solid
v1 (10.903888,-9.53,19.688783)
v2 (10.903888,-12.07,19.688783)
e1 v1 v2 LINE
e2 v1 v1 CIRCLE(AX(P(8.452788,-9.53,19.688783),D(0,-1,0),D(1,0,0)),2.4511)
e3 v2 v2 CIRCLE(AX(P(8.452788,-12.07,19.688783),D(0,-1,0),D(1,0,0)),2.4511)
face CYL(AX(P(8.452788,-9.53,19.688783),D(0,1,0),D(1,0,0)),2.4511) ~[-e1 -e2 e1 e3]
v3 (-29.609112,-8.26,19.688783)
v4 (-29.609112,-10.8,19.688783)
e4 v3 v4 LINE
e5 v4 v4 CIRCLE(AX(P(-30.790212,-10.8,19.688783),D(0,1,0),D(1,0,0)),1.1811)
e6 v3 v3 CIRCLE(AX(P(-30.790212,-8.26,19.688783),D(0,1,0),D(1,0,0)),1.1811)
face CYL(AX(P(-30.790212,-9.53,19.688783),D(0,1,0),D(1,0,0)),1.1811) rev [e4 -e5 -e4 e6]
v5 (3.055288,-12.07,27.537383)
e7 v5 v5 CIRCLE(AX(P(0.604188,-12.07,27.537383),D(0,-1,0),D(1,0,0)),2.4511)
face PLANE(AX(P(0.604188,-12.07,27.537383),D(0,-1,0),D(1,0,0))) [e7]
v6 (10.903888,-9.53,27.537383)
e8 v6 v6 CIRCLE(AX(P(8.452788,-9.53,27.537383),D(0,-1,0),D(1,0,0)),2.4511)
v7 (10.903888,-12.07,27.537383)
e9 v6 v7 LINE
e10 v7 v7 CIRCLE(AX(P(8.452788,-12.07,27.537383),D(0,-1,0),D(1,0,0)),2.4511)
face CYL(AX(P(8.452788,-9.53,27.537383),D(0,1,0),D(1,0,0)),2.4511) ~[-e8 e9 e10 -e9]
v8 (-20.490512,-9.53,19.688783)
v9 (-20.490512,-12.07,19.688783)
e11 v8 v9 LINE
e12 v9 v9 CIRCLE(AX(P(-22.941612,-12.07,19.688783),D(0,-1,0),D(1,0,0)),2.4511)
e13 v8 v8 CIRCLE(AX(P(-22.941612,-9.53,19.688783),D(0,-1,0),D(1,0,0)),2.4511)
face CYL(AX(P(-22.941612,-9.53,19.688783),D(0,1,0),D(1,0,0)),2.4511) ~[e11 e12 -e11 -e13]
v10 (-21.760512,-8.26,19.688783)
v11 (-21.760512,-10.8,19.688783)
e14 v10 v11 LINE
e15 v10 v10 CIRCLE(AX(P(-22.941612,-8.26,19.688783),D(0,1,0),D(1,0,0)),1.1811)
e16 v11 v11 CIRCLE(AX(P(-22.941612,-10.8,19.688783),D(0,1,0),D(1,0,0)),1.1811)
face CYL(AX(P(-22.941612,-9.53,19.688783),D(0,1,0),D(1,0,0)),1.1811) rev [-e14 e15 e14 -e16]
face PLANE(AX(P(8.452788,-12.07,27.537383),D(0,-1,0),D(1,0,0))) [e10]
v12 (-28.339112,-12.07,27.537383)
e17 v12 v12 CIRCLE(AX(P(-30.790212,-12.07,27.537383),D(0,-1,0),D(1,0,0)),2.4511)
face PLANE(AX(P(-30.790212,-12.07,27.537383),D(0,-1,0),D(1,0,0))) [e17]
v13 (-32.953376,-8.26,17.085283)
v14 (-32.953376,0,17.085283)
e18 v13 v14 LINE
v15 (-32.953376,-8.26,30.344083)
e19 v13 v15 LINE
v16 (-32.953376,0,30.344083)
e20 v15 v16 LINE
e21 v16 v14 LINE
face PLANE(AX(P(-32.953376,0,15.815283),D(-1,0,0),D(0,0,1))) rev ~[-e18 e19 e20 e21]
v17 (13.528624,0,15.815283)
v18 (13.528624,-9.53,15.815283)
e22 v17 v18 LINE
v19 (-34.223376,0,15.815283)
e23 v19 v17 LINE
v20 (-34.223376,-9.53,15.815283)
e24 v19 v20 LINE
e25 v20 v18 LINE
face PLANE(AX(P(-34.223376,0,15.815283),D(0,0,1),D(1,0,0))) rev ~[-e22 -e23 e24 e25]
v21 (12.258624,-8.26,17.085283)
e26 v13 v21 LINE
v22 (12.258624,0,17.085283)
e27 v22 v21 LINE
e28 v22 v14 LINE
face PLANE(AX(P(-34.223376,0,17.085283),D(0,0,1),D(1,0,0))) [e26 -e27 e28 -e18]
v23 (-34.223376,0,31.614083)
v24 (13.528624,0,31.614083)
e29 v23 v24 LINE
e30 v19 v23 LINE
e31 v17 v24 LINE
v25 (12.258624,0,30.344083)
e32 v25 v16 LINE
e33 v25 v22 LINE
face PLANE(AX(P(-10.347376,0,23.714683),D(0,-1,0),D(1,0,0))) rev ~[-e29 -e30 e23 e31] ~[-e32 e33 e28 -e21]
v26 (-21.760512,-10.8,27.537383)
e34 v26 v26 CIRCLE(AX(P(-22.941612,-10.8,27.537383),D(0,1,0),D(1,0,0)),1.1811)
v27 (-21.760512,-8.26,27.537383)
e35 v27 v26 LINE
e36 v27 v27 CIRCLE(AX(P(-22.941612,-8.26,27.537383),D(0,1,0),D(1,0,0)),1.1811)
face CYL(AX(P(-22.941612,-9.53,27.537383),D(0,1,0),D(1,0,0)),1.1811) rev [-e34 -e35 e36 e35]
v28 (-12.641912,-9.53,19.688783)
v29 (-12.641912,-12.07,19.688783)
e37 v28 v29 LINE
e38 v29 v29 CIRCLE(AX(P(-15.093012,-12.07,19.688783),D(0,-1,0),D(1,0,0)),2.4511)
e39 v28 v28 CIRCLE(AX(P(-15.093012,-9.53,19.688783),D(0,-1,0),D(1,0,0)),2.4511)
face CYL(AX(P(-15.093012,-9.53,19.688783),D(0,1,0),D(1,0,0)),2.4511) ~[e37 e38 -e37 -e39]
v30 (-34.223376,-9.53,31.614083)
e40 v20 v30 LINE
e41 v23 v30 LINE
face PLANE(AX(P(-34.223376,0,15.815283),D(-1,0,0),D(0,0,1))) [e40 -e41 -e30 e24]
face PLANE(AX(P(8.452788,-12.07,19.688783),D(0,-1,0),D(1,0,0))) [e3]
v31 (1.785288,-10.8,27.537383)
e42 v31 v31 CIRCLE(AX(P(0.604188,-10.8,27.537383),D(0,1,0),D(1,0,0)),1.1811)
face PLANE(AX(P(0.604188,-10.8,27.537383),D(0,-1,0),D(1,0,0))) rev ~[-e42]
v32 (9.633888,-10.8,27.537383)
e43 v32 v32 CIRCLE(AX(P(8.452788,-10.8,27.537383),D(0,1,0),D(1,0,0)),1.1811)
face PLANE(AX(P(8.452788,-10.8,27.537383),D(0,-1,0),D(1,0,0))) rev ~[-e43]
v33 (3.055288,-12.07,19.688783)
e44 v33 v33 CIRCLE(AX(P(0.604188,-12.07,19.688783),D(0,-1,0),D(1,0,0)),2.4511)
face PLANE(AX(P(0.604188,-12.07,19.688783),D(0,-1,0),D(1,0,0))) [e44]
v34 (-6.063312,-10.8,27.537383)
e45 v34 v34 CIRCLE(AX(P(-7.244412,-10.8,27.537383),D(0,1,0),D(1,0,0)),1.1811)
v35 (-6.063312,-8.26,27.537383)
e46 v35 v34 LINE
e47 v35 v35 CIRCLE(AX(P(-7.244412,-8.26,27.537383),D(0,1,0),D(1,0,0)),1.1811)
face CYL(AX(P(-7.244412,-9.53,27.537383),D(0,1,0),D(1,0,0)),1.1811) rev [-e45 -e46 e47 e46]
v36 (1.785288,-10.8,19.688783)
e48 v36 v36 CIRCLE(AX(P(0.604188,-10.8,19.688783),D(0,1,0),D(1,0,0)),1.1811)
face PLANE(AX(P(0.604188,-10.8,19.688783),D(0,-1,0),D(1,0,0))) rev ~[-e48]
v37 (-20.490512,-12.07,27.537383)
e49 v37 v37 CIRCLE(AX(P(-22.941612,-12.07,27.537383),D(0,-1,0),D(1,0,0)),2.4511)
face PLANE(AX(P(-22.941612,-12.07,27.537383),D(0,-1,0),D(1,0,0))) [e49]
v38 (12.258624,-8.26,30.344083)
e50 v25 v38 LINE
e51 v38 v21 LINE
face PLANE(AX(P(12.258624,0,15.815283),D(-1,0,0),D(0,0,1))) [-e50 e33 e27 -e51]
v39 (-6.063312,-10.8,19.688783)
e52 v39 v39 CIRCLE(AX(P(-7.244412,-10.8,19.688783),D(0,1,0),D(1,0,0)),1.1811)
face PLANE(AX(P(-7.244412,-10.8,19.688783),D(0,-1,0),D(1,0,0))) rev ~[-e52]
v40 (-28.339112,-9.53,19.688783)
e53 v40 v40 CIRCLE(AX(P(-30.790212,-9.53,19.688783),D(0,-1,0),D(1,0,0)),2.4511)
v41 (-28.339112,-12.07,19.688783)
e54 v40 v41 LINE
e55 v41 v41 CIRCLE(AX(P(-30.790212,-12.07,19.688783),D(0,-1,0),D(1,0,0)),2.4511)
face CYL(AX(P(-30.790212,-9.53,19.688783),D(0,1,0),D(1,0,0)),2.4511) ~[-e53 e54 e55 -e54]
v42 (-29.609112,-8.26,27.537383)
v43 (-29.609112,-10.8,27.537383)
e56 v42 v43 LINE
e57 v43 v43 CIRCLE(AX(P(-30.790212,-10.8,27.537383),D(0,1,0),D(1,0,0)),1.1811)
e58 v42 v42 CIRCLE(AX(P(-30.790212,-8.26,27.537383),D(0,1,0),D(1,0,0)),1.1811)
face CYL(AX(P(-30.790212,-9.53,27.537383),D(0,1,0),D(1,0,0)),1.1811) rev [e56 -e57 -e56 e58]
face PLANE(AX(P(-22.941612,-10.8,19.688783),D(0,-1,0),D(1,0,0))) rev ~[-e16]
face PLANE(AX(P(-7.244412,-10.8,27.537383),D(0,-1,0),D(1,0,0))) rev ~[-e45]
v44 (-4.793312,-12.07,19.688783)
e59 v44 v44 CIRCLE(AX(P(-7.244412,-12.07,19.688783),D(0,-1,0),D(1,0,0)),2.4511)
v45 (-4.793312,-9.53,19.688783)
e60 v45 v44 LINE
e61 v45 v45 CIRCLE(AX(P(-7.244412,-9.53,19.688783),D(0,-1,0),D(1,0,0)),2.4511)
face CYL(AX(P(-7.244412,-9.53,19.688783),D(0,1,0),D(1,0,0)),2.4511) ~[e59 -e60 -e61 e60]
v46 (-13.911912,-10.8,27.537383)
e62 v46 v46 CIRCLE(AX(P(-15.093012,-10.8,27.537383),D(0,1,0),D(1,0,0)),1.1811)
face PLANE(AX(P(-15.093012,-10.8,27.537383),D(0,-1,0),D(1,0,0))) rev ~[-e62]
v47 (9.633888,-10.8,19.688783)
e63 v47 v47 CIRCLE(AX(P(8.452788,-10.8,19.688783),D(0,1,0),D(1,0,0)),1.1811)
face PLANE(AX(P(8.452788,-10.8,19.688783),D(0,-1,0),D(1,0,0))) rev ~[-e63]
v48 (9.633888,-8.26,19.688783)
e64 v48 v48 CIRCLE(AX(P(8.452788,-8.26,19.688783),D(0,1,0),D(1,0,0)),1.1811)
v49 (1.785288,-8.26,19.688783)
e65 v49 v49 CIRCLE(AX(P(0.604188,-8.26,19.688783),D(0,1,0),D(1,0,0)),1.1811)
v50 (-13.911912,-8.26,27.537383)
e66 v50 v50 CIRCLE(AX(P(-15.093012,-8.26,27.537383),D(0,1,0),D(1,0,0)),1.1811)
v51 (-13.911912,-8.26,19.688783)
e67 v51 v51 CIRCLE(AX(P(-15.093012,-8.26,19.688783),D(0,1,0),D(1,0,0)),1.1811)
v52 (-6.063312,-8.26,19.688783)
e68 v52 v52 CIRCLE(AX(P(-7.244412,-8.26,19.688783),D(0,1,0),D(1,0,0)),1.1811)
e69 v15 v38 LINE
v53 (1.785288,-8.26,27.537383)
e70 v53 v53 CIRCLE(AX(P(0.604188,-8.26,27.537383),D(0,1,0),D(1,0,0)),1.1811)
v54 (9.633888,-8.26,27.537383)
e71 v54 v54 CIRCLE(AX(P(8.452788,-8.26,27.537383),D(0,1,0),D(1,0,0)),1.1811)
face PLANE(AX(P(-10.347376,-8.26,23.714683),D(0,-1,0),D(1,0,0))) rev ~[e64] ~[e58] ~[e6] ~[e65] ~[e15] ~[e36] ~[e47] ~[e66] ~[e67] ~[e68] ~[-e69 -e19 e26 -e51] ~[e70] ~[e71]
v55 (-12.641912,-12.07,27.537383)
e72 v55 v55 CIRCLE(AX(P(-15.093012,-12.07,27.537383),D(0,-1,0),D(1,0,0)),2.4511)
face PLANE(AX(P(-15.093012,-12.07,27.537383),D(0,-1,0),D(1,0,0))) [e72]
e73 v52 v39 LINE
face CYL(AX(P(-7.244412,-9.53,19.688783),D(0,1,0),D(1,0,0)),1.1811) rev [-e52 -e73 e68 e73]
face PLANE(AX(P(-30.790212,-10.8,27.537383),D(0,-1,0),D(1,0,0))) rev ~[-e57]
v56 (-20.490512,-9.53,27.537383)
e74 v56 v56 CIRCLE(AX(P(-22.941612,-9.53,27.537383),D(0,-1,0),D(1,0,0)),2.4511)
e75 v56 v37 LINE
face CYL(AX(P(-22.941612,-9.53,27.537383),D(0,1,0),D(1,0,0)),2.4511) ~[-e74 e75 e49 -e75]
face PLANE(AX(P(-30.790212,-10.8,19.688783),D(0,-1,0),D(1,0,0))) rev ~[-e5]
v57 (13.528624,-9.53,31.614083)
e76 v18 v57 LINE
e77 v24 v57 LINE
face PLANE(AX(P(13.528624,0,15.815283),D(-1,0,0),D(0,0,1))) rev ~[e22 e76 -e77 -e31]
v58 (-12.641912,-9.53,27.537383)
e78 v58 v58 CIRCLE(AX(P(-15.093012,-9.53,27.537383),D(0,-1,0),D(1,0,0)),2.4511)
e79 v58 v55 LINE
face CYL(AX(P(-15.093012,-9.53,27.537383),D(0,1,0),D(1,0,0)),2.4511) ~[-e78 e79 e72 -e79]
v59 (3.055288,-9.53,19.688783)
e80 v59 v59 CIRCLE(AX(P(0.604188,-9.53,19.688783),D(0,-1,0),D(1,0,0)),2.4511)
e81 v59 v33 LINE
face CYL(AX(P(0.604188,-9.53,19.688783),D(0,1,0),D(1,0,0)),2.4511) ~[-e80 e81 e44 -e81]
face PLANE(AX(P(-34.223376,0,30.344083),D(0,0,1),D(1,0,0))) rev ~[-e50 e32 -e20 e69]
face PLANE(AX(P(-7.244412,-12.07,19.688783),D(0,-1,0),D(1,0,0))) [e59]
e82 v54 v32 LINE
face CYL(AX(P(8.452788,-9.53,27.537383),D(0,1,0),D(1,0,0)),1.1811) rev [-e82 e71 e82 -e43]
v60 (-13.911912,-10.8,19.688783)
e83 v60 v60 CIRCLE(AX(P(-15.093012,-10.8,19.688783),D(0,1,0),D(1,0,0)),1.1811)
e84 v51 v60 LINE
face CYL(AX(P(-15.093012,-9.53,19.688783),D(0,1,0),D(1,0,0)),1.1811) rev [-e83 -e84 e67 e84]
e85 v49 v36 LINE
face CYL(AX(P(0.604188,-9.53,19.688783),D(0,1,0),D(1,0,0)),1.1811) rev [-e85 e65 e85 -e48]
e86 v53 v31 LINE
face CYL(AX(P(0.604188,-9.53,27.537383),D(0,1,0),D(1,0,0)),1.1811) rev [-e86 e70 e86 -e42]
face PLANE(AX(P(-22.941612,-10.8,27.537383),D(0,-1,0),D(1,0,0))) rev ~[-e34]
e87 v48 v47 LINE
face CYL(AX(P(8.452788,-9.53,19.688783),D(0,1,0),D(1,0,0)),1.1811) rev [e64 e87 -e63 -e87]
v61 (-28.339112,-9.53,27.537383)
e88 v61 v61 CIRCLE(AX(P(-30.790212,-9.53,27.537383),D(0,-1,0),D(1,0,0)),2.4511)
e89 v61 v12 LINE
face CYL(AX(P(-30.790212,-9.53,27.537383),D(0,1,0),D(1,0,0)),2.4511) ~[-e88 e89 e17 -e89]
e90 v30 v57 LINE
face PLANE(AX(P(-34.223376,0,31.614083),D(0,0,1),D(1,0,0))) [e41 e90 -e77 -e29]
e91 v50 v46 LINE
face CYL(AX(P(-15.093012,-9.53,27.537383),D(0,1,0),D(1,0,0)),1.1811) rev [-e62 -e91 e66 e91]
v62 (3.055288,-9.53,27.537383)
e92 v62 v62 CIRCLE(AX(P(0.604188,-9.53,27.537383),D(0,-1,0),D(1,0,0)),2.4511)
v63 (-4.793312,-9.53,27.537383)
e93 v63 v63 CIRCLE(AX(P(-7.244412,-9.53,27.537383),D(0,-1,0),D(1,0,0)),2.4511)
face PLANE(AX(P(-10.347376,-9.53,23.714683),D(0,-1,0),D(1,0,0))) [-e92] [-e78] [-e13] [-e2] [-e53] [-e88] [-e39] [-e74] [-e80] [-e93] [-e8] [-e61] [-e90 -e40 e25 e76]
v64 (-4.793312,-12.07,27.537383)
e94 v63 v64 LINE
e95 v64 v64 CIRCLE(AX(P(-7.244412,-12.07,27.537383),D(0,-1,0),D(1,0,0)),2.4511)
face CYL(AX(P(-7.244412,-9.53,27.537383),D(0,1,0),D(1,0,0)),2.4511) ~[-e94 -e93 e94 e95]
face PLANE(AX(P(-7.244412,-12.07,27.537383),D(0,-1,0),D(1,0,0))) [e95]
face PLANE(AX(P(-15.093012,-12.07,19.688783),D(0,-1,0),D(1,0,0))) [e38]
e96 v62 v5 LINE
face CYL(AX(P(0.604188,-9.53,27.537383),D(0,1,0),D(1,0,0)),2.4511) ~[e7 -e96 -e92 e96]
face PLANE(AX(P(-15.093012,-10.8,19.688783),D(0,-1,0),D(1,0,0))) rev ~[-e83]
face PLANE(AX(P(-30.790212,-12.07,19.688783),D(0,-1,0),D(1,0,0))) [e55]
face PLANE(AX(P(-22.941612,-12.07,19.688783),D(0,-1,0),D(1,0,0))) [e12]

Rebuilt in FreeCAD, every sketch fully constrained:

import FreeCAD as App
import Part
import Sketcher
Q = App.Units.Quantity


def faces_at(feature, points):
    """Names of the faces that lie closest to the given points."""
    faces = feature.Shape.Faces
    near = lambda p: min(range(len(faces)), key=lambda i: faces[i].distToShape(Part.Vertex(*p))[0])
    return sorted({f"Face{near(p) + 1}" for p in points})


def add_polygon(sketch, points):
    """Adds a closed chain of lines whose ends are joined by coincident constraints."""
    first, n = sketch.GeometryCount, len(points)
    for a, b in zip(points, points[1:] + points[:1]):
        sketch.addGeometry(Part.LineSegment(App.Vector(*a, 0), App.Vector(*b, 0)), False)
    for i in range(n):
        sketch.addConstraint(Sketcher.Constraint("Coincident", first + i, 2, first + (i + 1) % n, 1))

doc = App.newDocument("Part")
params = doc.addObject("Spreadsheet::Sheet", "Params")
for row, (alias, value) in enumerate([
    ("sketch1_width", "1.88 in"),
    ("sketch1_height", "0.622 in"),
    ("pad1_length", "9.53 mm"),
    ("sketch2_diameter", "0.193 in"),
    ("pad2_length", "0.1 in"),
    ("thickness_wall", "0.05 in"),
], start=1):
    params.set(f"A{row}", alias)
    params.set(f"B{row}", "=" + value)
    params.setAlias(f"B{row}", alias)

body = doc.addObject("PartDesign::Body", "Body")

sketch1 = body.newObject("Sketcher::SketchObject", "Sketch")
sketch1.AttachmentSupport = (doc.getObject("XZ_Plane"), [""])
sketch1.MapMode = "FlatFace"
add_polygon(sketch1, [(-34, 32), (-34, 16), (14, 16), (14, 32)])
sketch1.addConstraint([
    Sketcher.Constraint("Vertical", 0),
    Sketcher.Constraint("Horizontal", 1),
    Sketcher.Constraint("Vertical", 2),
    Sketcher.Constraint("Horizontal", 3),
    Sketcher.Constraint("DistanceX", 1, 1, 1, 2, Q("1.88 in")),
    Sketcher.Constraint("DistanceY", 0, 2, 0, 1, Q("0.622 in")),
    Sketcher.Constraint("DistanceX", 0, 2, -1, 1, 34.223376),
    Sketcher.Constraint("DistanceY", -1, 1, 0, 2, 15.815283),
])
sketch1.setExpression("Constraints[8]", "Params.sketch1_width")
sketch1.setExpression("Constraints[9]", "Params.sketch1_height")
pad1 = body.newObject("PartDesign::Pad", "Pad")
pad1.Profile = sketch1
pad1.setExpression("Length", "Params.pad1_length")

sketch2 = body.newObject("Sketcher::SketchObject", "Sketch001")
sketch2.AttachmentSupport = (doc.getObject("XZ_Plane"), [""])
sketch2.MapMode = "FlatFace"
sketch2.AttachmentOffset = App.Placement(App.Vector(0, 0, 9.53), App.Rotation())
sketch2.addGeometry([
    Part.Circle(App.Vector(8.5, 27.5, 0), App.Vector(0, 0, 1), 2.5),
    Part.Circle(App.Vector(8.5, 19.7, 0), App.Vector(0, 0, 1), 2.5),
    Part.Circle(App.Vector(0.6, 27.5, 0), App.Vector(0, 0, 1), 2.5),
    Part.Circle(App.Vector(0.6, 19.7, 0), App.Vector(0, 0, 1), 2.5),
    Part.Circle(App.Vector(-7.2, 27.5, 0), App.Vector(0, 0, 1), 2.5),
    Part.Circle(App.Vector(-7.2, 19.7, 0), App.Vector(0, 0, 1), 2.5),
    Part.Circle(App.Vector(-15.1, 27.5, 0), App.Vector(0, 0, 1), 2.5),
    Part.Circle(App.Vector(-15.1, 19.7, 0), App.Vector(0, 0, 1), 2.5),
    Part.Circle(App.Vector(-22.9, 27.5, 0), App.Vector(0, 0, 1), 2.5),
    Part.Circle(App.Vector(-22.9, 19.7, 0), App.Vector(0, 0, 1), 2.5),
    Part.Circle(App.Vector(-30.8, 27.5, 0), App.Vector(0, 0, 1), 2.5),
    Part.Circle(App.Vector(-30.8, 19.7, 0), App.Vector(0, 0, 1), 2.5),
], False)
sketch2.addConstraint([
    Sketcher.Constraint("Equal", 0, 1),
    Sketcher.Constraint("Equal", 1, 2),
    Sketcher.Constraint("Equal", 2, 3),
    Sketcher.Constraint("Equal", 3, 4),
    Sketcher.Constraint("Equal", 4, 5),
    Sketcher.Constraint("Equal", 5, 6),
    Sketcher.Constraint("Equal", 6, 7),
    Sketcher.Constraint("Equal", 7, 8),
    Sketcher.Constraint("Equal", 8, 9),
    Sketcher.Constraint("Equal", 9, 10),
    Sketcher.Constraint("Equal", 10, 11),
    Sketcher.Constraint("Horizontal", 0, 3, 2, 3),
    Sketcher.Constraint("Horizontal", 1, 3, 3, 3),
    Sketcher.Constraint("Horizontal", 2, 3, 4, 3),
    Sketcher.Constraint("Horizontal", 3, 3, 5, 3),
    Sketcher.Constraint("Horizontal", 4, 3, 6, 3),
    Sketcher.Constraint("Horizontal", 5, 3, 7, 3),
    Sketcher.Constraint("Horizontal", 6, 3, 8, 3),
    Sketcher.Constraint("Horizontal", 7, 3, 9, 3),
    Sketcher.Constraint("Horizontal", 8, 3, 10, 3),
    Sketcher.Constraint("Horizontal", 9, 3, 11, 3),
    Sketcher.Constraint("Vertical", 0, 3, 1, 3),
    Sketcher.Constraint("Vertical", 2, 3, 3, 3),
    Sketcher.Constraint("Vertical", 4, 3, 5, 3),
    Sketcher.Constraint("Vertical", 6, 3, 7, 3),
    Sketcher.Constraint("Vertical", 8, 3, 9, 3),
    Sketcher.Constraint("Vertical", 10, 3, 11, 3),
    Sketcher.Constraint("Diameter", 0, Q("0.193 in")),
    Sketcher.Constraint("DistanceY", 1, 3, 0, 3, Q("0.309 in")),
    Sketcher.Constraint("DistanceX", 2, 3, 0, 3, Q("0.309 in")),
    Sketcher.Constraint("DistanceX", 4, 3, 2, 3, Q("0.309 in")),
    Sketcher.Constraint("DistanceX", 6, 3, 4, 3, Q("0.309 in")),
    Sketcher.Constraint("DistanceX", 8, 3, 6, 3, Q("0.309 in")),
    Sketcher.Constraint("DistanceX", 10, 3, 8, 3, Q("0.309 in")),
    Sketcher.Constraint("DistanceX", -1, 1, 0, 3, 8.452788),
    Sketcher.Constraint("DistanceY", -1, 1, 0, 3, 27.537383),
])
sketch2.setExpression("Constraints[27]", "Params.sketch2_diameter")
pad2 = body.newObject("PartDesign::Pad", "Pad001")
pad2.Profile = sketch2
pad2.setExpression("Length", "Params.pad2_length")
doc.recompute()

thickness = body.newObject("PartDesign::Thickness", "Thickness")
thickness.Base = (pad2, faces_at(pad2, [(-10.347, 0, 23.715)]))
thickness.setExpression("Value", "Params.thickness_wall")
thickness.Reversed = True
thickness.Join = "Intersection"

doc.recompute()
